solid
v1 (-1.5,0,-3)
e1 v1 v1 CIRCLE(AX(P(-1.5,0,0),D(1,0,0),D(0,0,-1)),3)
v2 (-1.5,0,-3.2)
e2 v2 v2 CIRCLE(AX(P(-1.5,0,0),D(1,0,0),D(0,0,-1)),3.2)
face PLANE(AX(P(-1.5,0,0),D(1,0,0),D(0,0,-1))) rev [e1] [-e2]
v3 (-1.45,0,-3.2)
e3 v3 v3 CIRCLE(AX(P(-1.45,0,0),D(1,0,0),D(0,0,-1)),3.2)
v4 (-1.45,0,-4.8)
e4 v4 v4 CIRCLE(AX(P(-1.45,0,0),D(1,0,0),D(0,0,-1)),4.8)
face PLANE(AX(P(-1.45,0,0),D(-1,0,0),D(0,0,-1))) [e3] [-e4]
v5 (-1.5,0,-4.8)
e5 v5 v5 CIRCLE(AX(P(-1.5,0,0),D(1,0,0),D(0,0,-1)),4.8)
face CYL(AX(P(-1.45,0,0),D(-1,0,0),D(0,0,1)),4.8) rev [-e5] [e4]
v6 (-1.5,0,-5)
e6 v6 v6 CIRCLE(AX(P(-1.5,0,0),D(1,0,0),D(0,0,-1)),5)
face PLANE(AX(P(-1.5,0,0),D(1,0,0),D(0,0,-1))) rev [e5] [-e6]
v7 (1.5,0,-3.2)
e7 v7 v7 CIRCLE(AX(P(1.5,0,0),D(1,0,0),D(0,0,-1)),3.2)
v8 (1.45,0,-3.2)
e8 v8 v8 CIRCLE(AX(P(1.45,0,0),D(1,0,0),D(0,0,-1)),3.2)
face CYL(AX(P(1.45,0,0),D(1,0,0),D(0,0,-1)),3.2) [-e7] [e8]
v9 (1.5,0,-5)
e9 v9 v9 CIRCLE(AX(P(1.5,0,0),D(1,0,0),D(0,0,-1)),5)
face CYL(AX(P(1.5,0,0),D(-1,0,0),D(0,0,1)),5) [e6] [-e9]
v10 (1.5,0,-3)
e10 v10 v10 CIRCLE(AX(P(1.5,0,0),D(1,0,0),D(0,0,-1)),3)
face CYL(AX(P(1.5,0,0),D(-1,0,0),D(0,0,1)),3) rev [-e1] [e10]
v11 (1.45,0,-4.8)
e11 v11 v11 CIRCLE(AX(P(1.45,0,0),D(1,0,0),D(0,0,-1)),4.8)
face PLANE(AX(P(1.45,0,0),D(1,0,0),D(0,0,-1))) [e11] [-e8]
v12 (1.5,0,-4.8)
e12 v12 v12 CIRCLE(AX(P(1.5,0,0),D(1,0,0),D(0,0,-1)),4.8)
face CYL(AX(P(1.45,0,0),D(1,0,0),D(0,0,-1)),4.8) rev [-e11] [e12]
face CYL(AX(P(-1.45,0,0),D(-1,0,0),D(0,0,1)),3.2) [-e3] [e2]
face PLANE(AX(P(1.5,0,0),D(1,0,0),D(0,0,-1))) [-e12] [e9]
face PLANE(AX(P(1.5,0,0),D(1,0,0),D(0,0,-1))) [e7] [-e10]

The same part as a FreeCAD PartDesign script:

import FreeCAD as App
import Part
import Sketcher

V = App.Vector
Q = App.Units.Quantity

doc = App.newDocument("Part")
body = doc.addObject("PartDesign::Body", "Body")

sketch1 = body.newObject("Sketcher::SketchObject", "Sketch")
sketch1.AttachmentSupport = (doc.getObject("YZ_Plane"), [""])
sketch1.MapMode = "FlatFace"
sketch1.addGeometry(Part.Circle(V(0, 0, 0), V(0, 0, 1), 5), False)
sketch1.addGeometry(Part.Circle(V(0, 0, 0), V(0, 0, 1), 3), False)
sketch1.addConstraint(Sketcher.Constraint("Coincident", 0, 3, -1, 1))
sketch1.addConstraint(Sketcher.Constraint("Coincident", 1, 3, -1, 1))
sketch1.addConstraint(Sketcher.Constraint("Diameter", 0, Q("10 mm")))
sketch1.addConstraint(Sketcher.Constraint("Diameter", 1, Q("6 mm")))
pad1 = body.newObject("PartDesign::Pad", "Pad")
pad1.Profile = sketch1
pad1.Length = 3
pad1.Midplane = True

sketch2 = body.newObject("Sketcher::SketchObject", "Sketch001")
sketch2.AttachmentSupport = (doc.getObject("YZ_Plane"), [""])
sketch2.MapMode = "FlatFace"
sketch2.AttachmentOffset = App.Placement(V(0, 0, 1.5), App.Rotation())
sketch2.addGeometry(Part.Circle(V(0, 0, 0), V(0, 0, 1), 4.8), False)
sketch2.addGeometry(Part.Circle(V(0, 0, 0), V(0, 0, 1), 3.2), False)
sketch2.addConstraint(Sketcher.Constraint("Coincident", 0, 3, -1, 1))
sketch2.addConstraint(Sketcher.Constraint("Coincident", 1, 3, -1, 1))
sketch2.addConstraint(Sketcher.Constraint("Diameter", 0, Q("9.6 mm")))
sketch2.addConstraint(Sketcher.Constraint("Diameter", 1, Q("6.4 mm")))
pocket1 = body.newObject("PartDesign::Pocket", "Pocket")
pocket1.Profile = sketch2
pocket1.Length = 0.05
doc.recompute()

mirrored = body.newObject("PartDesign::Mirrored", "Mirrored")
mirrored.Originals = [pocket1]
mirrored.MirrorPlane = (doc.getObject("YZ_Plane"), [""])
body.Tip = mirrored

doc.recompute()
